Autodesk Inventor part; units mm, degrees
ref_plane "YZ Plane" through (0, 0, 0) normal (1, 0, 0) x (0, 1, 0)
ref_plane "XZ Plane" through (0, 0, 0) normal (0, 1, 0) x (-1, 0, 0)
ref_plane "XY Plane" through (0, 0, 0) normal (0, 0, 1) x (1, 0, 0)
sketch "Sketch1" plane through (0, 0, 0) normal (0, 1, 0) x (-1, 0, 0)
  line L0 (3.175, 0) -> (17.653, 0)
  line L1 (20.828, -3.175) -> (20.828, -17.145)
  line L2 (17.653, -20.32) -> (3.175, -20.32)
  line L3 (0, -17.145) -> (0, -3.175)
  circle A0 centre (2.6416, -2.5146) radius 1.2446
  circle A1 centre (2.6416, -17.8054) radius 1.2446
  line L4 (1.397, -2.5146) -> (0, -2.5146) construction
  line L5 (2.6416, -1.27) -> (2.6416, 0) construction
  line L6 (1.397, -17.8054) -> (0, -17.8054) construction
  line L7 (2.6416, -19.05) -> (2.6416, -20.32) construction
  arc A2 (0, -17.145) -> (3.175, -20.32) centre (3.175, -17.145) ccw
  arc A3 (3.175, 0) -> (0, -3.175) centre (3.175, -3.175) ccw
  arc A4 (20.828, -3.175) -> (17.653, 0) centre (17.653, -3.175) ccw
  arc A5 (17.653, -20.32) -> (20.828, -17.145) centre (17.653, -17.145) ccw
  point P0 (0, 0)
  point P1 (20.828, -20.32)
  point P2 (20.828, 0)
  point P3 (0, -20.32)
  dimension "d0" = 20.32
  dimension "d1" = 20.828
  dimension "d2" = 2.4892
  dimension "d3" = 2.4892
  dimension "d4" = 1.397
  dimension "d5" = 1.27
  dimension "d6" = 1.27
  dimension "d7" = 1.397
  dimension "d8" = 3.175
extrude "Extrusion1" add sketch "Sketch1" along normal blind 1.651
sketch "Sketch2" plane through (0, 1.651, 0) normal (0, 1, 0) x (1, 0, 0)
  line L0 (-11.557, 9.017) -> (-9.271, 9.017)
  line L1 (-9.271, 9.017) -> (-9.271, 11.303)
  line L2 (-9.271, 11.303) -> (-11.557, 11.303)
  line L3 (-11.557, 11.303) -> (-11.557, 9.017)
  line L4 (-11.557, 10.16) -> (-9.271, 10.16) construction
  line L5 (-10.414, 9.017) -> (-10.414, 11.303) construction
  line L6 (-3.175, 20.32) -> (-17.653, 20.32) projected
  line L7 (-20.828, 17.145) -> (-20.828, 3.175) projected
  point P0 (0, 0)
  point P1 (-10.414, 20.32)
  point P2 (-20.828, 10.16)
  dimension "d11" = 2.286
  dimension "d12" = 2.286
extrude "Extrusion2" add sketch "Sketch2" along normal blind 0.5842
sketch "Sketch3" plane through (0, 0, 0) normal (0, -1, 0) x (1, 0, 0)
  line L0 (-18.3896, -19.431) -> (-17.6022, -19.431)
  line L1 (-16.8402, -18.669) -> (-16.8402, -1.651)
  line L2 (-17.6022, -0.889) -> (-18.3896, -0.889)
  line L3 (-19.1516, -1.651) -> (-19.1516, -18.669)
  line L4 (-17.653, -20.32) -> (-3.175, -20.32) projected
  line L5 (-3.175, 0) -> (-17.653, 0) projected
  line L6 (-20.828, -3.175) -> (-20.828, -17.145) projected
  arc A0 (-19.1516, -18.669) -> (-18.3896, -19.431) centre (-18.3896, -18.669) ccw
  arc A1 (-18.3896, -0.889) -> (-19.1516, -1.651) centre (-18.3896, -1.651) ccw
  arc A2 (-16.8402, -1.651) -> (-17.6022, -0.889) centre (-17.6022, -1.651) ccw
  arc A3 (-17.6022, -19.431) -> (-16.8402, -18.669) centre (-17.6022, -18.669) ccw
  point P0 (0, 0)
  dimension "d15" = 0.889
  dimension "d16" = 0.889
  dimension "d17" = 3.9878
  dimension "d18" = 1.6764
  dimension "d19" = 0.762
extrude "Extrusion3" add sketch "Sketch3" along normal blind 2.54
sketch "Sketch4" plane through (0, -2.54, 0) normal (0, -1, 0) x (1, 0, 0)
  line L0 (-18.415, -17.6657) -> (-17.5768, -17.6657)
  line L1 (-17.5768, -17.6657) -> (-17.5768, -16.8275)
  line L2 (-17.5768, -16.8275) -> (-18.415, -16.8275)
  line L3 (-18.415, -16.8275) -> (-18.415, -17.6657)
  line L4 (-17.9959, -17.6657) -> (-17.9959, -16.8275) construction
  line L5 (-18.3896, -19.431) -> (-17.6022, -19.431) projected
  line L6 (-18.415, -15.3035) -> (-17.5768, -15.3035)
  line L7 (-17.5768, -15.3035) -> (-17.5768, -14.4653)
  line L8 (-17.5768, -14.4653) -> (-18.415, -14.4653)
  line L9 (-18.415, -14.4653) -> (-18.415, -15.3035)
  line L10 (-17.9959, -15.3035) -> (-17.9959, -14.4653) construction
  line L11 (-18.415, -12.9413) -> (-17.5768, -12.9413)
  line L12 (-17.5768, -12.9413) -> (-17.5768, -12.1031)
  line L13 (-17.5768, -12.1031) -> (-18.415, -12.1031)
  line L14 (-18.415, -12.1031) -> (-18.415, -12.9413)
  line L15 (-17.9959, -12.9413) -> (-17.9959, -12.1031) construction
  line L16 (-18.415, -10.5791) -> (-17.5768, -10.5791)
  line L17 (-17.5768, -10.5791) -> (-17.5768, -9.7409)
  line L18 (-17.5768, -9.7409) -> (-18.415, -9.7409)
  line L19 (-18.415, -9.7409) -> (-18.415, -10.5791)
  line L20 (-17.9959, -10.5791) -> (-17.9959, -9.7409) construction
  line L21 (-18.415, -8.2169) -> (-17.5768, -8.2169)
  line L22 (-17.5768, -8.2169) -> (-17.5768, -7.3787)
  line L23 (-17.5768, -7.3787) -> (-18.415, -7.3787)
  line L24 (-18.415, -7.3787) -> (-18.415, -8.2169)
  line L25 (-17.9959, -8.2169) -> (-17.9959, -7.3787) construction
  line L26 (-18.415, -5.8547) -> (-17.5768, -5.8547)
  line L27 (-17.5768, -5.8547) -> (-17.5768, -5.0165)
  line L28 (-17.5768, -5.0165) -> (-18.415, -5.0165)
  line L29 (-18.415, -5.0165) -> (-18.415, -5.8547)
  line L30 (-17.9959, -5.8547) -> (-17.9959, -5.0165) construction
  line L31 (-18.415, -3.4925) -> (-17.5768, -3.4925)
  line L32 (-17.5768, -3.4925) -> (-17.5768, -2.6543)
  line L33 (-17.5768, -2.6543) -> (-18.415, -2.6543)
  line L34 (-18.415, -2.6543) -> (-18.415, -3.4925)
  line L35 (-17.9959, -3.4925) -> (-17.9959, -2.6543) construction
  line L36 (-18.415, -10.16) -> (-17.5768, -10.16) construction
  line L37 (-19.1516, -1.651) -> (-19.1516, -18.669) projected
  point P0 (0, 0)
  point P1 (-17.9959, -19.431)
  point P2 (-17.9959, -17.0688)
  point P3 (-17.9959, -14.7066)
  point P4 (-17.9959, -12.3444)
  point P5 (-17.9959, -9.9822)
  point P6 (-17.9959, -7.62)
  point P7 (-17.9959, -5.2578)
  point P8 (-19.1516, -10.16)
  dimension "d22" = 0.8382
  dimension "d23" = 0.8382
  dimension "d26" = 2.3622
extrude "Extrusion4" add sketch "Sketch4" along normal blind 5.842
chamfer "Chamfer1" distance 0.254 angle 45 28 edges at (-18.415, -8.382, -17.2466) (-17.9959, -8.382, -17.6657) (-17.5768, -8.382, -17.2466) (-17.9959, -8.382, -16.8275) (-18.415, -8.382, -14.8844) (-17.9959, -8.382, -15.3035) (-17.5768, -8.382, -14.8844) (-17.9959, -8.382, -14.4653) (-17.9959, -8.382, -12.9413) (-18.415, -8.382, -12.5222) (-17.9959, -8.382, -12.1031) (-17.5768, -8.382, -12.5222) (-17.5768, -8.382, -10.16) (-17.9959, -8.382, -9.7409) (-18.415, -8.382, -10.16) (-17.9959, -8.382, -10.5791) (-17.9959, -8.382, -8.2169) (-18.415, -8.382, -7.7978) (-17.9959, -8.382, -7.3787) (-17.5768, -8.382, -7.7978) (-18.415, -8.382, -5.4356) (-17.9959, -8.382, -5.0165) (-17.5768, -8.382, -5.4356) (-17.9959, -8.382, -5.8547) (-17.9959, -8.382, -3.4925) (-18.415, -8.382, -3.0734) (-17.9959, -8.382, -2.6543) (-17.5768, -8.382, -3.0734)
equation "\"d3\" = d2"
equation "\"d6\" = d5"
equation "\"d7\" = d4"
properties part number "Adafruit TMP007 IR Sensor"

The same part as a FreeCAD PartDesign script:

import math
import FreeCAD as App
import Part
import Sketcher
from FreeCAD import Vector
Q = App.Units.Quantity


def edges_at(feature, points):
    """Names of the edges that pass closest to the given points."""
    edges = feature.Shape.Edges
    near = lambda p: min(range(len(edges)), key=lambda i: edges[i].distToShape(Part.Vertex(*p))[0])
    return sorted({f"Edge{near(p) + 1}" for p in points})


def add_polygon(sketch, points):
    """Adds a closed chain of lines whose ends are joined by coincident constraints."""
    first, n = sketch.GeometryCount, len(points)
    for a, b in zip(points, points[1:] + points[:1]):
        sketch.addGeometry(Part.LineSegment(App.Vector(*a, 0), App.Vector(*b, 0)), False)
    for i in range(n):
        sketch.addConstraint(Sketcher.Constraint("Coincident", first + i, 2, first + (i + 1) % n, 1))

doc = App.newDocument("Part")
body = doc.addObject("PartDesign::Body", "Body")

sketch1 = doc.addObject("Sketcher::SketchObject", "Sketch")
body.addObject(sketch1)
sketch1.AttachmentSupport = (doc.XZ_Plane, [""])
sketch1.MapMode = "FlatFace"
sketch1.addGeometry([
    Part.LineSegment(Vector(-17.7, 0, 0), Vector(-3.2, 0, 0)),
    Part.ArcOfCircle(Part.Circle(Vector(-3.2, -3.2, 0), Vector(0, 0, 1), 3.2), math.radians(0), math.radians(90)),
    Part.LineSegment(Vector(0, -3.2, 0), Vector(0, -17.1, 0)),
    Part.ArcOfCircle(Part.Circle(Vector(-3.2, -17.1, 0), Vector(0, 0, 1), 3.2), math.radians(-90), math.radians(0)),
    Part.LineSegment(Vector(-3.2, -20.3, 0), Vector(-17.7, -20.3, 0)),
    Part.ArcOfCircle(Part.Circle(Vector(-17.7, -17.1, 0), Vector(0, 0, 1), 3.2), math.radians(180), math.radians(270)),
    Part.LineSegment(Vector(-20.8, -17.1, 0), Vector(-20.8, -3.2, 0)),
    Part.ArcOfCircle(Part.Circle(Vector(-17.7, -3.2, 0), Vector(0, 0, 1), 3.2), math.radians(90), math.radians(180)),
    Part.Circle(Vector(-2.6, -17.8, 0), Vector(0, 0, 1), 1.2),
    Part.Circle(Vector(-2.6, -2.5, 0), Vector(0, 0, 1), 1.2),
], False)
sketch1.addConstraint([
    Sketcher.Constraint("Tangent", 0, 2, 1, 2),
    Sketcher.Constraint("Tangent", 1, 1, 2, 1),
    Sketcher.Constraint("Tangent", 2, 2, 3, 2),
    Sketcher.Constraint("Tangent", 3, 1, 4, 1),
    Sketcher.Constraint("Tangent", 4, 2, 5, 2),
    Sketcher.Constraint("Tangent", 5, 1, 6, 1),
    Sketcher.Constraint("Tangent", 6, 2, 7, 2),
    Sketcher.Constraint("Tangent", 7, 1, 0, 1),
    Sketcher.Constraint("Horizontal", 0),
    Sketcher.Constraint("Vertical", 2),
    Sketcher.Constraint("Horizontal", 4),
    Sketcher.Constraint("Vertical", 6),
    Sketcher.Constraint("Equal", 1, 3),
    Sketcher.Constraint("Equal", 3, 5),
    Sketcher.Constraint("Equal", 5, 7),
    Sketcher.Constraint("Equal", 8, 9),
    Sketcher.Constraint("PointOnObject", 0, 2, -1),
    Sketcher.Constraint("PointOnObject", 1, 1, -2),
    Sketcher.Constraint("Vertical", 8, 3, 9, 3),
    Sketcher.Constraint("Diameter", 8, Q("0.098 in")),
    Sketcher.Constraint("Radius", 1, Q("0.125 in")),
    Sketcher.Constraint("DistanceY", 3, 1, -1, 1, Q("0.8 in")),
    Sketcher.Constraint("DistanceX", 5, 1, -1, 1, Q("0.82 in")),
    Sketcher.Constraint("DistanceX", 8, 3, -1, 1, Q("0.104 in")),
    Sketcher.Constraint("DistanceY", 8, 3, -1, 1, Q("0.701 in")),
    Sketcher.Constraint("DistanceY", 9, 3, -1, 1, Q("0.099 in")),
])
pad1 = doc.addObject("PartDesign::Pad", "Pad")
body.addObject(pad1)
pad1.Profile = sketch1
pad1.Length = Q("0.065 in")
pad1.Reversed = True

sketch2 = doc.addObject("Sketcher::SketchObject", "Sketch001")
body.addObject(sketch2)
sketch2.AttachmentSupport = (doc.XZ_Plane, [""])
sketch2.MapMode = "FlatFace"
sketch2.AttachmentOffset = App.Placement(Vector(0, 0, -0.065 * 25.4), App.Rotation())
add_polygon(sketch2, [(-11.6, -11.3), (-11.6, -9), (-9.3, -9), (-9.3, -11.3)])
sketch2.addConstraint([
    Sketcher.Constraint("Vertical", 0),
    Sketcher.Constraint("Horizontal", 1),
    Sketcher.Constraint("Vertical", 2),
    Sketcher.Constraint("Horizontal", 3),
    Sketcher.Constraint("Equal", 3, 0),
    Sketcher.Constraint("DistanceX", 1, 1, 1, 2, Q("0.09 in")),
    Sketcher.Constraint("DistanceX", 0, 2, -1, 1, Q("0.455 in")),
    Sketcher.Constraint("DistanceY", 0, 2, -1, 1, Q("0.355 in")),
])
pad2 = doc.addObject("PartDesign::Pad", "Pad001")
body.addObject(pad2)
pad2.Profile = sketch2
pad2.Length = Q("0.023 in")
pad2.Reversed = True

sketch3 = doc.addObject("Sketcher::SketchObject", "Sketch002")
body.addObject(sketch3)
sketch3.AttachmentSupport = (doc.XZ_Plane, [""])
sketch3.MapMode = "FlatFace"
sketch3.addGeometry([
    Part.ArcOfCircle(Part.Circle(Vector(-18.4, -18.7, 0), Vector(0, 0, 1), 0.8), math.radians(180), math.radians(270)),
    Part.LineSegment(Vector(-18.4, -19.4, 0), Vector(-17.6, -19.4, 0)),
    Part.ArcOfCircle(Part.Circle(Vector(-17.6, -18.7, 0), Vector(0, 0, 1), 0.8), math.radians(-90), math.radians(0)),
    Part.LineSegment(Vector(-16.8, -18.7, 0), Vector(-16.8, -1.7, 0)),
    Part.ArcOfCircle(Part.Circle(Vector(-17.6, -1.7, 0), Vector(0, 0, 1), 0.8), math.radians(0), math.radians(90)),
    Part.LineSegment(Vector(-17.6, -0.9, 0), Vector(-18.4, -0.9, 0)),
    Part.ArcOfCircle(Part.Circle(Vector(-18.4, -1.7, 0), Vector(0, 0, 1), 0.8), math.radians(90), math.radians(180)),
    Part.LineSegment(Vector(-19.2, -1.7, 0), Vector(-19.2, -18.7, 0)),
], False)
sketch3.addConstraint([
    Sketcher.Constraint("Tangent", 0, 2, 1, 1),
    Sketcher.Constraint("Tangent", 1, 2, 2, 1),
    Sketcher.Constraint("Tangent", 2, 2, 3, 1),
    Sketcher.Constraint("Tangent", 3, 2, 4, 1),
    Sketcher.Constraint("Tangent", 4, 2, 5, 1),
    Sketcher.Constraint("Tangent", 5, 2, 6, 1),
    Sketcher.Constraint("Tangent", 6, 2, 7, 1),
    Sketcher.Constraint("Tangent", 7, 2, 0, 1),
    Sketcher.Constraint("Horizontal", 1),
    Sketcher.Constraint("Vertical", 3),
    Sketcher.Constraint("Horizontal", 5),
    Sketcher.Constraint("Vertical", 7),
    Sketcher.Constraint("Equal", 0, 2),
    Sketcher.Constraint("Equal", 2, 4),
    Sketcher.Constraint("Equal", 4, 6),
    Sketcher.Constraint("Radius", 0, Q("0.03 in")),
    Sketcher.Constraint("DistanceY", 4, 2, -1, 1, Q("0.035 in")),
    Sketcher.Constraint("DistanceY", 3, 1, 3, 2, Q("0.67 in")),
    Sketcher.Constraint("DistanceX", 1, 1, 1, 2, Q("0.031 in")),
    Sketcher.Constraint("DistanceX", 0, 3, -1, 1, Q("0.724 in")),
])
pad3 = doc.addObject("PartDesign::Pad", "Pad002")
body.addObject(pad3)
pad3.Profile = sketch3
pad3.Length = Q("0.1 in")

sketch4 = doc.addObject("Sketcher::SketchObject", "Sketch003")
body.addObject(sketch4)
sketch4.AttachmentSupport = (doc.XZ_Plane, [""])
sketch4.MapMode = "FlatFace"
sketch4.AttachmentOffset = App.Placement(Vector(0, 0, 0.1 * 25.4), App.Rotation())
add_polygon(sketch4, [(-18.4, -16.8), (-18.4, -17.7), (-17.6, -17.7), (-17.6, -16.8)])
add_polygon(sketch4, [(-18.4, -14.5), (-18.4, -15.3), (-17.6, -15.3), (-17.6, -14.5)])
add_polygon(sketch4, [(-18.4, -12.1), (-18.4, -12.9), (-17.6, -12.9), (-17.6, -12.1)])
add_polygon(sketch4, [(-18.4, -9.7), (-18.4, -10.6), (-17.6, -10.6), (-17.6, -9.7)])
add_polygon(sketch4, [(-18.4, -7.4), (-18.4, -8.2), (-17.6, -8.2), (-17.6, -7.4)])
add_polygon(sketch4, [(-18.4, -5), (-18.4, -5.9), (-17.6, -5.9), (-17.6, -5)])
add_polygon(sketch4, [(-18.4, -2.7), (-18.4, -3.5), (-17.6, -3.5), (-17.6, -2.7)])
sketch4.addConstraint([
    Sketcher.Constraint("Vertical", 0),
    Sketcher.Constraint("Horizontal", 1),
    Sketcher.Constraint("Vertical", 2),
    Sketcher.Constraint("Horizontal", 3),
    Sketcher.Constraint("Vertical", 4),
    Sketcher.Constraint("Horizontal", 5),
    Sketcher.Constraint("Vertical", 6),
    Sketcher.Constraint("Horizontal", 7),
    Sketcher.Constraint("Vertical", 8),
    Sketcher.Constraint("Horizontal", 9),
    Sketcher.Constraint("Vertical", 10),
    Sketcher.Constraint("Horizontal", 11),
    Sketcher.Constraint("Vertical", 12),
    Sketcher.Constraint("Horizontal", 13),
    Sketcher.Constraint("Vertical", 14),
    Sketcher.Constraint("Horizontal", 15),
    Sketcher.Constraint("Vertical", 16),
    Sketcher.Constraint("Horizontal", 17),
    Sketcher.Constraint("Vertical", 18),
    Sketcher.Constraint("Horizontal", 19),
    Sketcher.Constraint("Vertical", 20),
    Sketcher.Constraint("Horizontal", 21),
    Sketcher.Constraint("Vertical", 22),
    Sketcher.Constraint("Horizontal", 23),
    Sketcher.Constraint("Vertical", 24),
    Sketcher.Constraint("Horizontal", 25),
    Sketcher.Constraint("Vertical", 26),
    Sketcher.Constraint("Horizontal", 27),
    Sketcher.Constraint("Vertical", 3, 2, 4, 2),
    Sketcher.Constraint("Vertical", 2, 2, 5, 2),
    Sketcher.Constraint("Vertical", 7, 2, 8, 2),
    Sketcher.Constraint("Vertical", 6, 2, 9, 2),
    Sketcher.Constraint("Vertical", 11, 2, 12, 2),
    Sketcher.Constraint("Vertical", 10, 2, 13, 2),
    Sketcher.Constraint("Vertical", 15, 2, 16, 2),
    Sketcher.Constraint("Vertical", 14, 2, 17, 2),
    Sketcher.Constraint("Vertical", 19, 2, 20, 2),
    Sketcher.Constraint("Vertical", 18, 2, 21, 2),
    Sketcher.Constraint("Vertical", 23, 2, 24, 2),
    Sketcher.Constraint("Vertical", 22, 2, 25, 2),
    Sketcher.Constraint("Equal", 27, 0),
    Sketcher.Constraint("Equal", 2, 4),
    Sketcher.Constraint("Equal", 6, 8),
    Sketcher.Constraint("Equal", 10, 12),
    Sketcher.Constraint("Equal", 14, 16),
    Sketcher.Constraint("Equal", 18, 20),
    Sketcher.Constraint("Equal", 22, 24),
    Sketcher.Constraint("DistanceX", 1, 1, 1, 2, Q("0.033 in")),
    Sketcher.Constraint("DistanceY", 0, 2, 4, 2, Q("0.093 in")),
    Sketcher.Constraint("DistanceY", 4, 2, 8, 2, Q("0.093 in")),
    Sketcher.Constraint("DistanceY", 8, 2, 12, 2, Q("0.093 in")),
    Sketcher.Constraint("DistanceY", 12, 2, 16, 2, Q("0.093 in")),
    Sketcher.Constraint("DistanceY", 16, 2, 20, 2, Q("0.093 in")),
    Sketcher.Constraint("DistanceY", 20, 2, 24, 2, Q("0.093 in")),
    Sketcher.Constraint("DistanceX", 0, 2, -1, 1, Q("0.725 in")),
    Sketcher.Constraint("DistanceY", 0, 2, -1, 1, Q("0.6955 in")),
])
pad4 = doc.addObject("PartDesign::Pad", "Pad003")
body.addObject(pad4)
pad4.Profile = sketch4
pad4.Length = Q("0.23 in")
doc.recompute()

chamfer = doc.addObject("PartDesign::Chamfer", "Chamfer")
body.addObject(chamfer)
chamfer.Base = (pad4, edges_at(pad4, [
    (-18.415, -8.382, -17.247),
    (-17.996, -8.382, -17.666),
    (-17.577, -8.382, -17.247),
    (-17.996, -8.382, -16.828),
    (-18.415, -8.382, -14.884),
    (-17.996, -8.382, -15.303),
    (-17.577, -8.382, -14.884),
    (-17.996, -8.382, -14.465),
    (-17.996, -8.382, -12.941),
    (-18.415, -8.382, -12.522),
    (-17.996, -8.382, -12.103),
    (-17.577, -8.382, -12.522),
    (-17.577, -8.382, -10.16),
    (-17.996, -8.382, -9.741),
    (-18.415, -8.382, -10.16),
    (-17.996, -8.382, -10.579),
    (-17.996, -8.382, -8.217),
    (-18.415, -8.382, -7.798),
    (-17.996, -8.382, -7.379),
    (-17.577, -8.382, -7.798),
    (-18.415, -8.382, -5.436),
    (-17.996, -8.382, -5.016),
    (-17.577, -8.382, -5.436),
    (-17.996, -8.382, -5.855),
    (-17.996, -8.382, -3.493),
    (-18.415, -8.382, -3.073),
    (-17.996, -8.382, -2.654),
    (-17.577, -8.382, -3.073),
]))
chamfer.Size = Q("0.01 in")

doc.recompute()
